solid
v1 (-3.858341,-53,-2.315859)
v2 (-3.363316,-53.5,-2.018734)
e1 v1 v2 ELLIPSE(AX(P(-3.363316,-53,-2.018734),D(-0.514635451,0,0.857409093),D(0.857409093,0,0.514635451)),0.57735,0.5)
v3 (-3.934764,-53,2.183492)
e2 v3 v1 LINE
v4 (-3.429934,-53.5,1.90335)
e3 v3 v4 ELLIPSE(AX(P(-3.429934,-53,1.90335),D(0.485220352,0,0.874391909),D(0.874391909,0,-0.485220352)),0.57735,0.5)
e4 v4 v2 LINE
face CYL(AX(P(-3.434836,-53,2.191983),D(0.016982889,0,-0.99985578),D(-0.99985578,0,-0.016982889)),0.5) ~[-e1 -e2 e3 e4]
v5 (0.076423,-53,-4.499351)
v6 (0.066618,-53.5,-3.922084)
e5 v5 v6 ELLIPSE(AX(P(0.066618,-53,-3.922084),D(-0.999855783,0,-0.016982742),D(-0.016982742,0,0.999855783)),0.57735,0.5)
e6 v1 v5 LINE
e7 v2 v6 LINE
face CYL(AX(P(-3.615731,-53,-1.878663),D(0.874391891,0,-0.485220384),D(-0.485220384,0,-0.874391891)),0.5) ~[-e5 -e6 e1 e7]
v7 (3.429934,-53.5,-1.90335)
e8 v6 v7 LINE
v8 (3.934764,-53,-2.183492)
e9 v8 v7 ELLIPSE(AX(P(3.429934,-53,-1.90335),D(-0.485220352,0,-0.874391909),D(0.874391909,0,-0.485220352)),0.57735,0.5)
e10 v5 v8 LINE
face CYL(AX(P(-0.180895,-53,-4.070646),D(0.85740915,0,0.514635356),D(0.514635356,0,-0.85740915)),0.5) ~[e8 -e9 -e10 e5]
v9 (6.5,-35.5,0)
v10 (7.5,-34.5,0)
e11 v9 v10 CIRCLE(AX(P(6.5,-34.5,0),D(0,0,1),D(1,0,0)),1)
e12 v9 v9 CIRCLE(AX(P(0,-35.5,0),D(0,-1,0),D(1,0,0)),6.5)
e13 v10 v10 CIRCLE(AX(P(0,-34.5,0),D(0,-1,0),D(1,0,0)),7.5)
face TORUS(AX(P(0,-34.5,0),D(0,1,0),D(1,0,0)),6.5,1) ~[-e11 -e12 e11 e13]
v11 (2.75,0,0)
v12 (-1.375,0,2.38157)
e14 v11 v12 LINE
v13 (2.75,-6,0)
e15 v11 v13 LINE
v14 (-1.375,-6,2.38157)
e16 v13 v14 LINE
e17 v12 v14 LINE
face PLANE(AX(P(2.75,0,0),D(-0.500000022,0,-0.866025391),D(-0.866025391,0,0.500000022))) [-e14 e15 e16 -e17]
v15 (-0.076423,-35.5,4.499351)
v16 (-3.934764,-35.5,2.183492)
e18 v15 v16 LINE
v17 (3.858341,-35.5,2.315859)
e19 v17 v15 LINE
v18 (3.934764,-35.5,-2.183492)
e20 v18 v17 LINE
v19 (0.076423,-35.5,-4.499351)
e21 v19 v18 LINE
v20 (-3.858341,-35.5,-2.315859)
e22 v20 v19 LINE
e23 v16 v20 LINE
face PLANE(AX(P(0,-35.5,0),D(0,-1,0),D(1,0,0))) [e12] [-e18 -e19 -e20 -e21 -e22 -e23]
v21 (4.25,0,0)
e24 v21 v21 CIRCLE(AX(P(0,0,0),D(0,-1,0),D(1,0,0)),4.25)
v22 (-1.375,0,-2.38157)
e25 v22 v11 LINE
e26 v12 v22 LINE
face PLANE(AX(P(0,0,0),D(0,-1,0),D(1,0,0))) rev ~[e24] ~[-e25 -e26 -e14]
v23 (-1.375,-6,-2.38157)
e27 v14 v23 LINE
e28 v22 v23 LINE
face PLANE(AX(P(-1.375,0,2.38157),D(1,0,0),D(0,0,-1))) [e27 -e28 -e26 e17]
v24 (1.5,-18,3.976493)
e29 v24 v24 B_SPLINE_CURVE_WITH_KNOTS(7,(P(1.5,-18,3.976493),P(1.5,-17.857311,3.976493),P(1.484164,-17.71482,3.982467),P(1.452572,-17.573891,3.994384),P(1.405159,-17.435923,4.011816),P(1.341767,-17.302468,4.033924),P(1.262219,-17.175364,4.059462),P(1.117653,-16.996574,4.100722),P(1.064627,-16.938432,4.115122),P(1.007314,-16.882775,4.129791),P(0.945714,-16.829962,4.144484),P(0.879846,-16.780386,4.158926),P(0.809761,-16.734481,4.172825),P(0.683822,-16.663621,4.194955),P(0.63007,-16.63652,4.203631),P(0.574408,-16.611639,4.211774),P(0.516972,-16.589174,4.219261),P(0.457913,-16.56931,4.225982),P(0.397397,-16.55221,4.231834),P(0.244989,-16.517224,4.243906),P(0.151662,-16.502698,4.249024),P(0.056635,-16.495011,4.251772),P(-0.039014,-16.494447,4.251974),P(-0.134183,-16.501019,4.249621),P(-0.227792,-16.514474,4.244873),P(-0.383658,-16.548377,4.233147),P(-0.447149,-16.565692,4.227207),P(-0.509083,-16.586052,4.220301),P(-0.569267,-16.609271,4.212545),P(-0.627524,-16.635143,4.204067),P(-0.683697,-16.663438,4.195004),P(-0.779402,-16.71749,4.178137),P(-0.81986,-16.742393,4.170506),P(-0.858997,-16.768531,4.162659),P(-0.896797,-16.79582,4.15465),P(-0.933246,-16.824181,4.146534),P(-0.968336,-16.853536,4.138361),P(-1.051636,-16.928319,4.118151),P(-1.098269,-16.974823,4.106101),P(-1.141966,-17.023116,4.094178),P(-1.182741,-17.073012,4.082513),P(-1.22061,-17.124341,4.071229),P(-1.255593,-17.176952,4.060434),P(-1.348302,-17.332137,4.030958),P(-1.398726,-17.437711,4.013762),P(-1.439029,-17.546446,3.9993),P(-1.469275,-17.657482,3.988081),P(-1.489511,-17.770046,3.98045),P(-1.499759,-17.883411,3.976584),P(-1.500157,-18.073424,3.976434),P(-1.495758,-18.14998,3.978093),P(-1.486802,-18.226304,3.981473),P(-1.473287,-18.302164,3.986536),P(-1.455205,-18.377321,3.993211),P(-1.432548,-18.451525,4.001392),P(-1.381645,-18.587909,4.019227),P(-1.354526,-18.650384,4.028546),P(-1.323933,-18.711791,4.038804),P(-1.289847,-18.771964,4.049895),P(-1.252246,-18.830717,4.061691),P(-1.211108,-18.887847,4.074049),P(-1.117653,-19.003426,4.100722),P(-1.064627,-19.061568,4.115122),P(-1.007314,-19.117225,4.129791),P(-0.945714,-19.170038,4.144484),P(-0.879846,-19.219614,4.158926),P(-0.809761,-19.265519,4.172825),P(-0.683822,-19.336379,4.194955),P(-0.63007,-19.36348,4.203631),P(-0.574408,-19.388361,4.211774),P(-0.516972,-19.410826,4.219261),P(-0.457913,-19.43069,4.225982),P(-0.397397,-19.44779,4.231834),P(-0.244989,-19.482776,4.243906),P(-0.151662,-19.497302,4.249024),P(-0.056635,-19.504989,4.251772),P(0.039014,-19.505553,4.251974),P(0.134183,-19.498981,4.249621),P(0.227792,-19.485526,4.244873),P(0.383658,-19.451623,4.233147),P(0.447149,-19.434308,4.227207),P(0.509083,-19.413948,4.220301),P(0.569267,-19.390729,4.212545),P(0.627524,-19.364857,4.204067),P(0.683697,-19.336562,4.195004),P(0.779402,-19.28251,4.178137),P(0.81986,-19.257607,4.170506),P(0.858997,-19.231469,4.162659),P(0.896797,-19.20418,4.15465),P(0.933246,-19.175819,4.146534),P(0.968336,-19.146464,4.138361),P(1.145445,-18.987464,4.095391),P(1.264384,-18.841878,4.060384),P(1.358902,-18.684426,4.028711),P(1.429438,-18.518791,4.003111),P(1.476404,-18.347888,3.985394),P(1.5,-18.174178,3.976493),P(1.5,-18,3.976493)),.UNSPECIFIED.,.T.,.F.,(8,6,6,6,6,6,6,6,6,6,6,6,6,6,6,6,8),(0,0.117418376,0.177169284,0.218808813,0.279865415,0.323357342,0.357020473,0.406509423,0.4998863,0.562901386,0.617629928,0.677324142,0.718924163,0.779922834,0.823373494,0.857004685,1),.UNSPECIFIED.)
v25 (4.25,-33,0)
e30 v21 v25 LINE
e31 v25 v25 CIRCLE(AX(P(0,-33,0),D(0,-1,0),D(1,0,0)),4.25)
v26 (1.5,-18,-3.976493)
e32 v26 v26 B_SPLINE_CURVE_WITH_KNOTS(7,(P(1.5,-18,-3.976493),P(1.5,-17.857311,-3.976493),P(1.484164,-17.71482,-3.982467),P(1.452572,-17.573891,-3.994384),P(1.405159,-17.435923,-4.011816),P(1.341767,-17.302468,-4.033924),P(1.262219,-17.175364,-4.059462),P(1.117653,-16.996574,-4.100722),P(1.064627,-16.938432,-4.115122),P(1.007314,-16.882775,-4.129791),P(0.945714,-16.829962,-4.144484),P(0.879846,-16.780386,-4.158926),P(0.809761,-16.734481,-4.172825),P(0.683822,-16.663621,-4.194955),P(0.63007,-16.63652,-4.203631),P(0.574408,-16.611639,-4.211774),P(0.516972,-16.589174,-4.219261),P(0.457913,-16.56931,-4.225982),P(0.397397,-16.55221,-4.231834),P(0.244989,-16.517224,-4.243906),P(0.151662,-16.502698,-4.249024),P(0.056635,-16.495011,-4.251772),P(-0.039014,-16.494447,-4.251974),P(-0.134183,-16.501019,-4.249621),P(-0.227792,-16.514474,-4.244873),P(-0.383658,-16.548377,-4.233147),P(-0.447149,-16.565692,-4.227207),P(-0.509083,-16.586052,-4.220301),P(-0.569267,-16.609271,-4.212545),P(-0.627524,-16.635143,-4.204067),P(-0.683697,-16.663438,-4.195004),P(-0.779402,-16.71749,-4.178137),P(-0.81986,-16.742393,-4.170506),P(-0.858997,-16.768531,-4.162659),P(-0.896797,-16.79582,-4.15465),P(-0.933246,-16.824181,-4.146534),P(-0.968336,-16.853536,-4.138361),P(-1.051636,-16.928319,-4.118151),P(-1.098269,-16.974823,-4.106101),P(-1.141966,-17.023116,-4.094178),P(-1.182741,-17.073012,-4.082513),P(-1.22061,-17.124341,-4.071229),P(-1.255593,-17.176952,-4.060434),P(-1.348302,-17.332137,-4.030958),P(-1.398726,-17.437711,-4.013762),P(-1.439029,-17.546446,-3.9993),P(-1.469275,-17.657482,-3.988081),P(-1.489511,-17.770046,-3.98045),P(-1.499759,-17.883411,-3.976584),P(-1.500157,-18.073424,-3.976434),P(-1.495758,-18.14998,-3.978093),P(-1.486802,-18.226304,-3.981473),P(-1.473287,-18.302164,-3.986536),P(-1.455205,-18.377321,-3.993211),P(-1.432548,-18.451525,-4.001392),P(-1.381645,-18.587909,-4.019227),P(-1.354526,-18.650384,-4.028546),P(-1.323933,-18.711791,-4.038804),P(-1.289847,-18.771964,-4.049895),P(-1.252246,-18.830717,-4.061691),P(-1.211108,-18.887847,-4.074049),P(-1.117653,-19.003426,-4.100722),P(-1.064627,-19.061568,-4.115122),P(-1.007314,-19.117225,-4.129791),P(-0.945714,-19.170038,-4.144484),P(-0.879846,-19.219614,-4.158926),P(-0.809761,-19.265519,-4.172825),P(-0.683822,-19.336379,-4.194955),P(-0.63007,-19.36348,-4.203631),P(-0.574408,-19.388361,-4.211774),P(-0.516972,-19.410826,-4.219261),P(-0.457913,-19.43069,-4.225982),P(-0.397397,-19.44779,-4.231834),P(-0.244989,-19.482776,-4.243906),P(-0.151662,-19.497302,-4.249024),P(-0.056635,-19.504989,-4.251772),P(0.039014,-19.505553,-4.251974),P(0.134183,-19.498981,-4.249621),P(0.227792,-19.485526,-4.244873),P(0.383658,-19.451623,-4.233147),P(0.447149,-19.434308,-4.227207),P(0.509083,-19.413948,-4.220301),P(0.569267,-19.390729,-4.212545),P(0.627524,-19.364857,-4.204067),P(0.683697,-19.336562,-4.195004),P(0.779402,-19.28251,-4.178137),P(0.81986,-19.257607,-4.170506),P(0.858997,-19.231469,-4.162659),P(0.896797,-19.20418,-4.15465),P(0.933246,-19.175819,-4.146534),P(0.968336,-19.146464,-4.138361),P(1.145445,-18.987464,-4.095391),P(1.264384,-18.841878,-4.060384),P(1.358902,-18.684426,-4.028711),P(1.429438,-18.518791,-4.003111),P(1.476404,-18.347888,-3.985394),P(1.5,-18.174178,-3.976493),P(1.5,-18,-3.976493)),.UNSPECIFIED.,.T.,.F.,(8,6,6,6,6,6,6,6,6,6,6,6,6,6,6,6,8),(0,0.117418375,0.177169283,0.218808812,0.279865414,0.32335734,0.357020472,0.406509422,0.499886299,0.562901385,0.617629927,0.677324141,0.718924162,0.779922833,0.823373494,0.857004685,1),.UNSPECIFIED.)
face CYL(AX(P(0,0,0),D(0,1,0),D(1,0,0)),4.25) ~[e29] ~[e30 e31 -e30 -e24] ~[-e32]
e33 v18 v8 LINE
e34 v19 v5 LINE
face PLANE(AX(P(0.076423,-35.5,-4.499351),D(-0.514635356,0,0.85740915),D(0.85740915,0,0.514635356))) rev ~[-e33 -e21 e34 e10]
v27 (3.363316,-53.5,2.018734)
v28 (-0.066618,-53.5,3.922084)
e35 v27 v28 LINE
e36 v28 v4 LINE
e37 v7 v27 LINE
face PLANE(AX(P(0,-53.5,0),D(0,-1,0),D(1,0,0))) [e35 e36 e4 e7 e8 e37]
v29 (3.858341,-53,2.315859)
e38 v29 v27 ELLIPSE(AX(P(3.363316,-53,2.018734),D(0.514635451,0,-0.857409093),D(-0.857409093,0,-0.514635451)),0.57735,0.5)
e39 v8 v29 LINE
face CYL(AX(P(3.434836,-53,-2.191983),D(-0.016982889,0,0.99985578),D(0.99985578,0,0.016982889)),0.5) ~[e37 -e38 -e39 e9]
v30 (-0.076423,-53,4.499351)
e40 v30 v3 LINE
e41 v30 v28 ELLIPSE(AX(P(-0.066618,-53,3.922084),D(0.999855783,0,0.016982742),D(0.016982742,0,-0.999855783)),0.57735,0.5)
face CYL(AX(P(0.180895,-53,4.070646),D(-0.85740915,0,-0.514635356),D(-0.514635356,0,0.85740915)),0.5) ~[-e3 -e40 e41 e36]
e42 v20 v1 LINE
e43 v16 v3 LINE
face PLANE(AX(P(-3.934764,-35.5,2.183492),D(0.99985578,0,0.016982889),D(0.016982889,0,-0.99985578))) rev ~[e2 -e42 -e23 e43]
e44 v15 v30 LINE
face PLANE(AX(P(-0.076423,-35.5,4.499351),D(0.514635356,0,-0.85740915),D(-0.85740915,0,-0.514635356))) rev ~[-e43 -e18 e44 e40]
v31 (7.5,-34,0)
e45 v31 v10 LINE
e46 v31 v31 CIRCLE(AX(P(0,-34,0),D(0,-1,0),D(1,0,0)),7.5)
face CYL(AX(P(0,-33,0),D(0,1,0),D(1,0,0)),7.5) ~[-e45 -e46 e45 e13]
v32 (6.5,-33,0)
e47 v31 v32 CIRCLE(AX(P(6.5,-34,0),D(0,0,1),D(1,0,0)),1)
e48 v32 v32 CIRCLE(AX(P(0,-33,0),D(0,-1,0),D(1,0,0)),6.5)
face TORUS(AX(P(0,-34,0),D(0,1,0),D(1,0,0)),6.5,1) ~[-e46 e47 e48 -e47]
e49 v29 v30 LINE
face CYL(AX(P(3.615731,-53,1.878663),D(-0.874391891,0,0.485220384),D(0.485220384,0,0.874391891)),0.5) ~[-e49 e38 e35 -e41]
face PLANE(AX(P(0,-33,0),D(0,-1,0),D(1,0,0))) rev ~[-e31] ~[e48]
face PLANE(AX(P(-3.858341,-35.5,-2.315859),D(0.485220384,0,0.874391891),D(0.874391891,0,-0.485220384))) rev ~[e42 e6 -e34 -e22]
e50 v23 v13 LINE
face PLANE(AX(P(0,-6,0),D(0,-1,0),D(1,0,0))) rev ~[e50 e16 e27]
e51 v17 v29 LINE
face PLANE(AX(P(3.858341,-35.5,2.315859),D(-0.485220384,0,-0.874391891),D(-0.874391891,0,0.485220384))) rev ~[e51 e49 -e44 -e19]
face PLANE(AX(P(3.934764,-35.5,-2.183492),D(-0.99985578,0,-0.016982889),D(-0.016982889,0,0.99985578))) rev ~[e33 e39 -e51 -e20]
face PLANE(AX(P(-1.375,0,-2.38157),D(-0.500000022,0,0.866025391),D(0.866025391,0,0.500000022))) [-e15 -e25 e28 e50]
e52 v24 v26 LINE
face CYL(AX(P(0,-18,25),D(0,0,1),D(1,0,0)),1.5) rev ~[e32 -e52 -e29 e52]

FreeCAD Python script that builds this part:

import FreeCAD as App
import Part
import Sketcher
from FreeCAD import Vector
Q = App.Units.Quantity


def edges_at(feature, points):
    """Names of the edges that pass closest to the given points."""
    edges = feature.Shape.Edges
    near = lambda p: min(range(len(edges)), key=lambda i: edges[i].distToShape(Part.Vertex(*p))[0])
    return sorted({f"Edge{near(p) + 1}" for p in points})


def add_polygon(sketch, points):
    """Adds a closed chain of lines whose ends are joined by coincident constraints."""
    first, n = sketch.GeometryCount, len(points)
    for a, b in zip(points, points[1:] + points[:1]):
        sketch.addGeometry(Part.LineSegment(App.Vector(*a, 0), App.Vector(*b, 0)), False)
    for i in range(n):
        sketch.addConstraint(Sketcher.Constraint("Coincident", first + i, 2, first + (i + 1) % n, 1))

doc = App.newDocument("Part")
body = doc.addObject("PartDesign::Body", "Body")

sketch1 = body.newObject("Sketcher::SketchObject", "Sketch")
sketch1.AttachmentSupport = (doc.getObject("XZ_Plane"), [""])
sketch1.MapMode = "FlatFace"
sketch1.addGeometry(Part.Circle(Vector(0, 0, 0), Vector(0, 0, 1), 4.25), False)
sketch1.addConstraint([
    Sketcher.Constraint("Coincident", 0, 3, -1, 1),
    Sketcher.Constraint("Diameter", 0, Q("8.5 mm")),
])
pad1 = body.newObject("PartDesign::Pad", "Pad")
pad1.Profile = sketch1
pad1.Length = 33

sketch2 = body.newObject("Sketcher::SketchObject", "Sketch001")
sketch2.AttachmentSupport = (doc.getObject("XZ_Plane"), [""])
sketch2.MapMode = "FlatFace"
add_polygon(sketch2, [(-1.375, -2.38157), (2.75, 0), (-1.375, 2.38157)])
sketch2.addConstraint([
    Sketcher.Constraint("Vertical", 2),
    Sketcher.Constraint("PointOnObject", 0, 2, -1),
    Sketcher.Constraint("Equal", 0, 1),
    Sketcher.Constraint("Angle", 0, Q("30.000001 deg")),
    Sketcher.Constraint("DistanceX", -1, 1, 0, 2, Q("2.75 mm")),
    Sketcher.Constraint("DistanceX", 1, 2, -1, 1, Q("1.375 mm")),
])
pocket1 = body.newObject("PartDesign::Pocket", "Pocket")
pocket1.Profile = sketch2
pocket1.Length = 6
pocket1.Reversed = True

sketch3 = body.newObject("Sketcher::SketchObject", "Sketch002")
sketch3.AttachmentSupport = (doc.getObject("XZ_Plane"), [""])
sketch3.MapMode = "FlatFace"
sketch3.AttachmentOffset = App.Placement(Vector(0, 0, 33), App.Rotation())
sketch3.addGeometry(Part.Circle(Vector(0, 0, 0), Vector(0, 0, 1), 7.5), False)
sketch3.addConstraint([
    Sketcher.Constraint("Coincident", 0, 3, -1, 1),
    Sketcher.Constraint("Diameter", 0, Q("15 mm")),
])
pad2 = body.newObject("PartDesign::Pad", "Pad001")
pad2.Profile = sketch3
pad2.Length = 2.5

sketch4 = body.newObject("Sketcher::SketchObject", "Sketch003")
sketch4.AttachmentSupport = (doc.getObject("XZ_Plane"), [""])
sketch4.MapMode = "FlatFace"
sketch4.AttachmentOffset = App.Placement(Vector(0, 0, 35.5), App.Rotation())
add_polygon(sketch4, [(0.076423, -4.499351), (3.934764, -2.183492), (3.858341, 2.315859), (-0.076423, 4.499351), (-3.934764, 2.183492), (-3.858341, -2.315859)])
sketch4.addConstraint([
    Sketcher.Constraint("Symmetric", 0, 2, 3, 2, -1, 1),
    Sketcher.Constraint("Symmetric", 1, 2, 4, 2, -1, 1),
    Sketcher.Constraint("Symmetric", 2, 2, 5, 2, -1, 1),
    Sketcher.Constraint("Equal", 0, 1),
    Sketcher.Constraint("Equal", 1, 2),
    Sketcher.Constraint("Distance", 0, Q("4.5 mm")),
    Sketcher.Constraint("DistanceX", -1, 1, 1, 2, Q("3.858341 mm")),
    Sketcher.Constraint("DistanceY", -1, 1, 1, 2, Q("2.315859 mm")),
    Sketcher.Constraint("DistanceY", -1, 1, 2, 2, Q("4.499351 mm")),
])
pad3 = body.newObject("PartDesign::Pad", "Pad002")
pad3.Profile = sketch4
pad3.Length = 18
doc.recompute()

fillet = body.newObject("PartDesign::Fillet", "Fillet")
fillet.Base = (pad3, edges_at(pad3, [
    (2.006, -53.5, -3.341),
    (-1.891, -53.5, -3.408),
    (-3.897, -53.5, -0.066),
    (-2.006, -53.5, 3.341),
    (1.891, -53.5, 3.408),
    (3.897, -53.5, 0.066),
]))
fillet.Radius = 0.5
doc.recompute()

fillet2 = body.newObject("PartDesign::Fillet", "Fillet001")
fillet2.Base = (fillet, edges_at(fillet, [(-7.5, -35.5, 0), (-7.5, -33, 0)]))
fillet2.Radius = 1

sketch5 = body.newObject("Sketcher::SketchObject", "Sketch004")
sketch5.AttachmentSupport = (doc.getObject("XY_Plane"), [""])
sketch5.MapMode = "FlatFace"
sketch5.AttachmentOffset = App.Placement(Vector(0, 0, 25), App.Rotation())
sketch5.addGeometry(Part.Circle(Vector(0, -18, 0), Vector(0, 0, 1), 1.5), False)
sketch5.addConstraint([
    Sketcher.Constraint("PointOnObject", 0, 3, -2),
    Sketcher.Constraint("Diameter", 0, Q("3 mm")),
    Sketcher.Constraint("DistanceY", 0, 3, -1, 1, Q("18 mm")),
])
pocket2 = body.newObject("PartDesign::Pocket", "Pocket001")
pocket2.Profile = sketch5
pocket2.Length = 40

doc.recompute()
